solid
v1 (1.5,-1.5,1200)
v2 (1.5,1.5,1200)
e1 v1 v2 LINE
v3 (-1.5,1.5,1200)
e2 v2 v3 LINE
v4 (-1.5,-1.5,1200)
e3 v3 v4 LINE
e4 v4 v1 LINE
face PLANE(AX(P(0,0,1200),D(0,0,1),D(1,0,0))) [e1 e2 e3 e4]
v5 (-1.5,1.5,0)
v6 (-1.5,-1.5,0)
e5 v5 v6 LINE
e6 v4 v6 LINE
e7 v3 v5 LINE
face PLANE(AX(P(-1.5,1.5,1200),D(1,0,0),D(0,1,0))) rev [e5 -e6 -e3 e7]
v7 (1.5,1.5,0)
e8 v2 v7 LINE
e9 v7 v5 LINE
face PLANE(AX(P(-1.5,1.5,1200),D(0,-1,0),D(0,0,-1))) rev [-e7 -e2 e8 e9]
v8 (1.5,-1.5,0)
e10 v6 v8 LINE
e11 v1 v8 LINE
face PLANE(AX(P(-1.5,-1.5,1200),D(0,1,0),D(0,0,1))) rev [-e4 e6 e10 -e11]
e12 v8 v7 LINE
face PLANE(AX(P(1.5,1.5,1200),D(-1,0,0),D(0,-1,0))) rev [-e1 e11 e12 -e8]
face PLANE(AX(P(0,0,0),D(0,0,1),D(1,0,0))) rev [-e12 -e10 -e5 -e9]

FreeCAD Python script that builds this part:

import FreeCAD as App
import Part
import Sketcher

V = App.Vector

doc = App.newDocument("Part")
body = doc.addObject("PartDesign::Body", "Body")

sketch1 = body.newObject("Sketcher::SketchObject", "Sketch")
sketch1.AttachmentSupport = (doc.getObject("XY_Plane"), [""])
sketch1.MapMode = "FlatFace"
sketch1.addGeometry([
    Part.LineSegment(V(-1.5, 1.5, 0), V(-1.5, -1.5, 0)),
    Part.LineSegment(V(-1.5, -1.5, 0), V(1.5, -1.5, 0)),
    Part.LineSegment(V(1.5, -1.5, 0), V(1.5, 1.5, 0)),
    Part.LineSegment(V(1.5, 1.5, 0), V(-1.5, 1.5, 0)),
], False)
sketch1.addConstraint([
    Sketcher.Constraint("Coincident", 0, 2, 1, 1),
    Sketcher.Constraint("Coincident", 1, 2, 2, 1),
    Sketcher.Constraint("Coincident", 2, 2, 3, 1),
    Sketcher.Constraint("Coincident", 3, 2, 0, 1),
    Sketcher.Constraint("Vertical", 0),
    Sketcher.Constraint("Horizontal", 1),
    Sketcher.Constraint("Vertical", 2),
    Sketcher.Constraint("Horizontal", 3),
    Sketcher.Constraint("Symmetric", 0, 2, 2, 2, -1, 1),
    Sketcher.Constraint("Equal", 3, 0),
    Sketcher.Constraint("DistanceX", 1, 1, 1, 2, 3.0),
])
pad1 = body.newObject("PartDesign::Pad", "Pad")
pad1.Profile = sketch1
pad1.Length = 1200

doc.recompute()
